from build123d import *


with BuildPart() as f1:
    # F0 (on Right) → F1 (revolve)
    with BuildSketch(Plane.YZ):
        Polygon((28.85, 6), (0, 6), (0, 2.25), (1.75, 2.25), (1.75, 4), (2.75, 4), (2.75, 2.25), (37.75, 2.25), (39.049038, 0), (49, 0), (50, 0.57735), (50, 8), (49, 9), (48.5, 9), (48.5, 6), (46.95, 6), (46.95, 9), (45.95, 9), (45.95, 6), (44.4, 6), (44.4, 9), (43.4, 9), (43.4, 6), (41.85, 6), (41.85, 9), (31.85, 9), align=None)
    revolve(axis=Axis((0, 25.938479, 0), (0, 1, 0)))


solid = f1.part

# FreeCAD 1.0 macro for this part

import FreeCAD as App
import Part
import Sketcher

V = App.Vector
Q = App.Units.Quantity


def add_polygon(sketch, points):
    """Adds a closed chain of lines whose ends are joined by coincident constraints."""
    first, n = sketch.GeometryCount, len(points)
    for a, b in zip(points, points[1:] + points[:1]):
        sketch.addGeometry(Part.LineSegment(App.Vector(*a, 0), App.Vector(*b, 0)), False)
    for i in range(n):
        sketch.addConstraint(Sketcher.Constraint("Coincident", first + i, 2, first + (i + 1) % n, 1))

doc = App.newDocument("Part")
body = doc.addObject("PartDesign::Body", "Body")

sketch1 = body.newObject("Sketcher::SketchObject", "Sketch")
sketch1.AttachmentSupport = (doc.getObject("YZ_Plane"), [""])
sketch1.MapMode = "FlatFace"
add_polygon(sketch1, [(28.9, 6), (0, 6), (0, 2.2), (1.8, 2.2), (1.8, 4), (2.8, 4), (2.8, 2.2), (37.8, 2.2), (39, 0), (49, 0), (50, 0.6), (50, 8), (49, 9), (48.5, 9), (48.5, 6), (47, 6), (47, 9), (46, 9), (46, 6), (44.4, 6), (44.4, 9), (43.4, 9), (43.4, 6), (41.9, 6), (41.9, 9), (31.9, 9)])
sketch1.addConstraint([
    Sketcher.Constraint("Horizontal", 0),
    Sketcher.Constraint("Vertical", 1),
    Sketcher.Constraint("Horizontal", 2),
    Sketcher.Constraint("Vertical", 3),
    Sketcher.Constraint("Horizontal", 4),
    Sketcher.Constraint("Vertical", 5),
    Sketcher.Constraint("Horizontal", 6),
    Sketcher.Constraint("Horizontal", 8),
    Sketcher.Constraint("Vertical", 10),
    Sketcher.Constraint("Horizontal", 12),
    Sketcher.Constraint("Vertical", 13),
    Sketcher.Constraint("Horizontal", 14),
    Sketcher.Constraint("Vertical", 15),
    Sketcher.Constraint("Horizontal", 16),
    Sketcher.Constraint("Vertical", 17),
    Sketcher.Constraint("Horizontal", 18),
    Sketcher.Constraint("Vertical", 19),
    Sketcher.Constraint("Horizontal", 20),
    Sketcher.Constraint("Vertical", 21),
    Sketcher.Constraint("Horizontal", 22),
    Sketcher.Constraint("Vertical", 23),
    Sketcher.Constraint("Horizontal", 24),
    Sketcher.Constraint("PointOnObject", 0, 2, -2),
    Sketcher.Constraint("PointOnObject", 7, 2, -1),
    Sketcher.Constraint("Perpendicular", 7, 9),
    Sketcher.Constraint("Perpendicular", 11, 25),
    Sketcher.Constraint("Horizontal", 2, 2, 5, 2),
    Sketcher.Constraint("Horizontal", 0, 2, 13, 2),
    Sketcher.Constraint("Horizontal", 12, 2, 15, 2),
    Sketcher.Constraint("Horizontal", 14, 2, 17, 2),
    Sketcher.Constraint("Horizontal", 16, 2, 19, 2),
    Sketcher.Constraint("Horizontal", 18, 2, 21, 2),
    Sketcher.Constraint("Horizontal", 20, 2, 23, 2),
    Sketcher.Constraint("Vertical", 8, 2, 11, 2),
    Sketcher.Constraint("Equal", 4, 16),
    Sketcher.Constraint("Equal", 14, 18),
    Sketcher.Constraint("Equal", 16, 20),
    Sketcher.Constraint("Equal", 18, 22),
    Sketcher.Constraint("Equal", 2, 3),
    Sketcher.Constraint("DistanceX", 4, 1, 4, 2, Q("1 mm")),
    Sketcher.Constraint("DistanceX", 6, 1, 6, 2, Q("35 mm")),
    Sketcher.Constraint("DistanceX", 24, 2, 24, 1, Q("10 mm")),
    Sketcher.Constraint("DistanceY", 13, 2, 13, 1, Q("3 mm")),
    Sketcher.Constraint("Angle", 7, Q("-60.000002 deg")),
    Sketcher.Constraint("Angle", 11, Q("135 deg")),
    Sketcher.Constraint("DistanceX", 12, 2, 12, 1, Q("0.5 mm")),
    Sketcher.Constraint("DistanceY", -1, 1, 0, 2, Q("6 mm")),
    Sketcher.Constraint("DistanceY", -1, 1, 3, 2, Q("4 mm")),
    Sketcher.Constraint("DistanceX", -1, 1, 8, 2, Q("49 mm")),
    Sketcher.Constraint("DistanceX", -1, 1, 9, 2, Q("50 mm")),
    Sketcher.Constraint("DistanceX", 0, 2, 0, 1, Q("28.85 mm")),
    Sketcher.Constraint("DistanceX", 2, 1, 2, 2, Q("1.75 mm")),
])
revolution = body.newObject("PartDesign::Revolution", "Revolution")
revolution.Profile = sketch1
revolution.ReferenceAxis = (sketch1, ["H_Axis"])
revolution.Angle = 360

doc.recompute()
